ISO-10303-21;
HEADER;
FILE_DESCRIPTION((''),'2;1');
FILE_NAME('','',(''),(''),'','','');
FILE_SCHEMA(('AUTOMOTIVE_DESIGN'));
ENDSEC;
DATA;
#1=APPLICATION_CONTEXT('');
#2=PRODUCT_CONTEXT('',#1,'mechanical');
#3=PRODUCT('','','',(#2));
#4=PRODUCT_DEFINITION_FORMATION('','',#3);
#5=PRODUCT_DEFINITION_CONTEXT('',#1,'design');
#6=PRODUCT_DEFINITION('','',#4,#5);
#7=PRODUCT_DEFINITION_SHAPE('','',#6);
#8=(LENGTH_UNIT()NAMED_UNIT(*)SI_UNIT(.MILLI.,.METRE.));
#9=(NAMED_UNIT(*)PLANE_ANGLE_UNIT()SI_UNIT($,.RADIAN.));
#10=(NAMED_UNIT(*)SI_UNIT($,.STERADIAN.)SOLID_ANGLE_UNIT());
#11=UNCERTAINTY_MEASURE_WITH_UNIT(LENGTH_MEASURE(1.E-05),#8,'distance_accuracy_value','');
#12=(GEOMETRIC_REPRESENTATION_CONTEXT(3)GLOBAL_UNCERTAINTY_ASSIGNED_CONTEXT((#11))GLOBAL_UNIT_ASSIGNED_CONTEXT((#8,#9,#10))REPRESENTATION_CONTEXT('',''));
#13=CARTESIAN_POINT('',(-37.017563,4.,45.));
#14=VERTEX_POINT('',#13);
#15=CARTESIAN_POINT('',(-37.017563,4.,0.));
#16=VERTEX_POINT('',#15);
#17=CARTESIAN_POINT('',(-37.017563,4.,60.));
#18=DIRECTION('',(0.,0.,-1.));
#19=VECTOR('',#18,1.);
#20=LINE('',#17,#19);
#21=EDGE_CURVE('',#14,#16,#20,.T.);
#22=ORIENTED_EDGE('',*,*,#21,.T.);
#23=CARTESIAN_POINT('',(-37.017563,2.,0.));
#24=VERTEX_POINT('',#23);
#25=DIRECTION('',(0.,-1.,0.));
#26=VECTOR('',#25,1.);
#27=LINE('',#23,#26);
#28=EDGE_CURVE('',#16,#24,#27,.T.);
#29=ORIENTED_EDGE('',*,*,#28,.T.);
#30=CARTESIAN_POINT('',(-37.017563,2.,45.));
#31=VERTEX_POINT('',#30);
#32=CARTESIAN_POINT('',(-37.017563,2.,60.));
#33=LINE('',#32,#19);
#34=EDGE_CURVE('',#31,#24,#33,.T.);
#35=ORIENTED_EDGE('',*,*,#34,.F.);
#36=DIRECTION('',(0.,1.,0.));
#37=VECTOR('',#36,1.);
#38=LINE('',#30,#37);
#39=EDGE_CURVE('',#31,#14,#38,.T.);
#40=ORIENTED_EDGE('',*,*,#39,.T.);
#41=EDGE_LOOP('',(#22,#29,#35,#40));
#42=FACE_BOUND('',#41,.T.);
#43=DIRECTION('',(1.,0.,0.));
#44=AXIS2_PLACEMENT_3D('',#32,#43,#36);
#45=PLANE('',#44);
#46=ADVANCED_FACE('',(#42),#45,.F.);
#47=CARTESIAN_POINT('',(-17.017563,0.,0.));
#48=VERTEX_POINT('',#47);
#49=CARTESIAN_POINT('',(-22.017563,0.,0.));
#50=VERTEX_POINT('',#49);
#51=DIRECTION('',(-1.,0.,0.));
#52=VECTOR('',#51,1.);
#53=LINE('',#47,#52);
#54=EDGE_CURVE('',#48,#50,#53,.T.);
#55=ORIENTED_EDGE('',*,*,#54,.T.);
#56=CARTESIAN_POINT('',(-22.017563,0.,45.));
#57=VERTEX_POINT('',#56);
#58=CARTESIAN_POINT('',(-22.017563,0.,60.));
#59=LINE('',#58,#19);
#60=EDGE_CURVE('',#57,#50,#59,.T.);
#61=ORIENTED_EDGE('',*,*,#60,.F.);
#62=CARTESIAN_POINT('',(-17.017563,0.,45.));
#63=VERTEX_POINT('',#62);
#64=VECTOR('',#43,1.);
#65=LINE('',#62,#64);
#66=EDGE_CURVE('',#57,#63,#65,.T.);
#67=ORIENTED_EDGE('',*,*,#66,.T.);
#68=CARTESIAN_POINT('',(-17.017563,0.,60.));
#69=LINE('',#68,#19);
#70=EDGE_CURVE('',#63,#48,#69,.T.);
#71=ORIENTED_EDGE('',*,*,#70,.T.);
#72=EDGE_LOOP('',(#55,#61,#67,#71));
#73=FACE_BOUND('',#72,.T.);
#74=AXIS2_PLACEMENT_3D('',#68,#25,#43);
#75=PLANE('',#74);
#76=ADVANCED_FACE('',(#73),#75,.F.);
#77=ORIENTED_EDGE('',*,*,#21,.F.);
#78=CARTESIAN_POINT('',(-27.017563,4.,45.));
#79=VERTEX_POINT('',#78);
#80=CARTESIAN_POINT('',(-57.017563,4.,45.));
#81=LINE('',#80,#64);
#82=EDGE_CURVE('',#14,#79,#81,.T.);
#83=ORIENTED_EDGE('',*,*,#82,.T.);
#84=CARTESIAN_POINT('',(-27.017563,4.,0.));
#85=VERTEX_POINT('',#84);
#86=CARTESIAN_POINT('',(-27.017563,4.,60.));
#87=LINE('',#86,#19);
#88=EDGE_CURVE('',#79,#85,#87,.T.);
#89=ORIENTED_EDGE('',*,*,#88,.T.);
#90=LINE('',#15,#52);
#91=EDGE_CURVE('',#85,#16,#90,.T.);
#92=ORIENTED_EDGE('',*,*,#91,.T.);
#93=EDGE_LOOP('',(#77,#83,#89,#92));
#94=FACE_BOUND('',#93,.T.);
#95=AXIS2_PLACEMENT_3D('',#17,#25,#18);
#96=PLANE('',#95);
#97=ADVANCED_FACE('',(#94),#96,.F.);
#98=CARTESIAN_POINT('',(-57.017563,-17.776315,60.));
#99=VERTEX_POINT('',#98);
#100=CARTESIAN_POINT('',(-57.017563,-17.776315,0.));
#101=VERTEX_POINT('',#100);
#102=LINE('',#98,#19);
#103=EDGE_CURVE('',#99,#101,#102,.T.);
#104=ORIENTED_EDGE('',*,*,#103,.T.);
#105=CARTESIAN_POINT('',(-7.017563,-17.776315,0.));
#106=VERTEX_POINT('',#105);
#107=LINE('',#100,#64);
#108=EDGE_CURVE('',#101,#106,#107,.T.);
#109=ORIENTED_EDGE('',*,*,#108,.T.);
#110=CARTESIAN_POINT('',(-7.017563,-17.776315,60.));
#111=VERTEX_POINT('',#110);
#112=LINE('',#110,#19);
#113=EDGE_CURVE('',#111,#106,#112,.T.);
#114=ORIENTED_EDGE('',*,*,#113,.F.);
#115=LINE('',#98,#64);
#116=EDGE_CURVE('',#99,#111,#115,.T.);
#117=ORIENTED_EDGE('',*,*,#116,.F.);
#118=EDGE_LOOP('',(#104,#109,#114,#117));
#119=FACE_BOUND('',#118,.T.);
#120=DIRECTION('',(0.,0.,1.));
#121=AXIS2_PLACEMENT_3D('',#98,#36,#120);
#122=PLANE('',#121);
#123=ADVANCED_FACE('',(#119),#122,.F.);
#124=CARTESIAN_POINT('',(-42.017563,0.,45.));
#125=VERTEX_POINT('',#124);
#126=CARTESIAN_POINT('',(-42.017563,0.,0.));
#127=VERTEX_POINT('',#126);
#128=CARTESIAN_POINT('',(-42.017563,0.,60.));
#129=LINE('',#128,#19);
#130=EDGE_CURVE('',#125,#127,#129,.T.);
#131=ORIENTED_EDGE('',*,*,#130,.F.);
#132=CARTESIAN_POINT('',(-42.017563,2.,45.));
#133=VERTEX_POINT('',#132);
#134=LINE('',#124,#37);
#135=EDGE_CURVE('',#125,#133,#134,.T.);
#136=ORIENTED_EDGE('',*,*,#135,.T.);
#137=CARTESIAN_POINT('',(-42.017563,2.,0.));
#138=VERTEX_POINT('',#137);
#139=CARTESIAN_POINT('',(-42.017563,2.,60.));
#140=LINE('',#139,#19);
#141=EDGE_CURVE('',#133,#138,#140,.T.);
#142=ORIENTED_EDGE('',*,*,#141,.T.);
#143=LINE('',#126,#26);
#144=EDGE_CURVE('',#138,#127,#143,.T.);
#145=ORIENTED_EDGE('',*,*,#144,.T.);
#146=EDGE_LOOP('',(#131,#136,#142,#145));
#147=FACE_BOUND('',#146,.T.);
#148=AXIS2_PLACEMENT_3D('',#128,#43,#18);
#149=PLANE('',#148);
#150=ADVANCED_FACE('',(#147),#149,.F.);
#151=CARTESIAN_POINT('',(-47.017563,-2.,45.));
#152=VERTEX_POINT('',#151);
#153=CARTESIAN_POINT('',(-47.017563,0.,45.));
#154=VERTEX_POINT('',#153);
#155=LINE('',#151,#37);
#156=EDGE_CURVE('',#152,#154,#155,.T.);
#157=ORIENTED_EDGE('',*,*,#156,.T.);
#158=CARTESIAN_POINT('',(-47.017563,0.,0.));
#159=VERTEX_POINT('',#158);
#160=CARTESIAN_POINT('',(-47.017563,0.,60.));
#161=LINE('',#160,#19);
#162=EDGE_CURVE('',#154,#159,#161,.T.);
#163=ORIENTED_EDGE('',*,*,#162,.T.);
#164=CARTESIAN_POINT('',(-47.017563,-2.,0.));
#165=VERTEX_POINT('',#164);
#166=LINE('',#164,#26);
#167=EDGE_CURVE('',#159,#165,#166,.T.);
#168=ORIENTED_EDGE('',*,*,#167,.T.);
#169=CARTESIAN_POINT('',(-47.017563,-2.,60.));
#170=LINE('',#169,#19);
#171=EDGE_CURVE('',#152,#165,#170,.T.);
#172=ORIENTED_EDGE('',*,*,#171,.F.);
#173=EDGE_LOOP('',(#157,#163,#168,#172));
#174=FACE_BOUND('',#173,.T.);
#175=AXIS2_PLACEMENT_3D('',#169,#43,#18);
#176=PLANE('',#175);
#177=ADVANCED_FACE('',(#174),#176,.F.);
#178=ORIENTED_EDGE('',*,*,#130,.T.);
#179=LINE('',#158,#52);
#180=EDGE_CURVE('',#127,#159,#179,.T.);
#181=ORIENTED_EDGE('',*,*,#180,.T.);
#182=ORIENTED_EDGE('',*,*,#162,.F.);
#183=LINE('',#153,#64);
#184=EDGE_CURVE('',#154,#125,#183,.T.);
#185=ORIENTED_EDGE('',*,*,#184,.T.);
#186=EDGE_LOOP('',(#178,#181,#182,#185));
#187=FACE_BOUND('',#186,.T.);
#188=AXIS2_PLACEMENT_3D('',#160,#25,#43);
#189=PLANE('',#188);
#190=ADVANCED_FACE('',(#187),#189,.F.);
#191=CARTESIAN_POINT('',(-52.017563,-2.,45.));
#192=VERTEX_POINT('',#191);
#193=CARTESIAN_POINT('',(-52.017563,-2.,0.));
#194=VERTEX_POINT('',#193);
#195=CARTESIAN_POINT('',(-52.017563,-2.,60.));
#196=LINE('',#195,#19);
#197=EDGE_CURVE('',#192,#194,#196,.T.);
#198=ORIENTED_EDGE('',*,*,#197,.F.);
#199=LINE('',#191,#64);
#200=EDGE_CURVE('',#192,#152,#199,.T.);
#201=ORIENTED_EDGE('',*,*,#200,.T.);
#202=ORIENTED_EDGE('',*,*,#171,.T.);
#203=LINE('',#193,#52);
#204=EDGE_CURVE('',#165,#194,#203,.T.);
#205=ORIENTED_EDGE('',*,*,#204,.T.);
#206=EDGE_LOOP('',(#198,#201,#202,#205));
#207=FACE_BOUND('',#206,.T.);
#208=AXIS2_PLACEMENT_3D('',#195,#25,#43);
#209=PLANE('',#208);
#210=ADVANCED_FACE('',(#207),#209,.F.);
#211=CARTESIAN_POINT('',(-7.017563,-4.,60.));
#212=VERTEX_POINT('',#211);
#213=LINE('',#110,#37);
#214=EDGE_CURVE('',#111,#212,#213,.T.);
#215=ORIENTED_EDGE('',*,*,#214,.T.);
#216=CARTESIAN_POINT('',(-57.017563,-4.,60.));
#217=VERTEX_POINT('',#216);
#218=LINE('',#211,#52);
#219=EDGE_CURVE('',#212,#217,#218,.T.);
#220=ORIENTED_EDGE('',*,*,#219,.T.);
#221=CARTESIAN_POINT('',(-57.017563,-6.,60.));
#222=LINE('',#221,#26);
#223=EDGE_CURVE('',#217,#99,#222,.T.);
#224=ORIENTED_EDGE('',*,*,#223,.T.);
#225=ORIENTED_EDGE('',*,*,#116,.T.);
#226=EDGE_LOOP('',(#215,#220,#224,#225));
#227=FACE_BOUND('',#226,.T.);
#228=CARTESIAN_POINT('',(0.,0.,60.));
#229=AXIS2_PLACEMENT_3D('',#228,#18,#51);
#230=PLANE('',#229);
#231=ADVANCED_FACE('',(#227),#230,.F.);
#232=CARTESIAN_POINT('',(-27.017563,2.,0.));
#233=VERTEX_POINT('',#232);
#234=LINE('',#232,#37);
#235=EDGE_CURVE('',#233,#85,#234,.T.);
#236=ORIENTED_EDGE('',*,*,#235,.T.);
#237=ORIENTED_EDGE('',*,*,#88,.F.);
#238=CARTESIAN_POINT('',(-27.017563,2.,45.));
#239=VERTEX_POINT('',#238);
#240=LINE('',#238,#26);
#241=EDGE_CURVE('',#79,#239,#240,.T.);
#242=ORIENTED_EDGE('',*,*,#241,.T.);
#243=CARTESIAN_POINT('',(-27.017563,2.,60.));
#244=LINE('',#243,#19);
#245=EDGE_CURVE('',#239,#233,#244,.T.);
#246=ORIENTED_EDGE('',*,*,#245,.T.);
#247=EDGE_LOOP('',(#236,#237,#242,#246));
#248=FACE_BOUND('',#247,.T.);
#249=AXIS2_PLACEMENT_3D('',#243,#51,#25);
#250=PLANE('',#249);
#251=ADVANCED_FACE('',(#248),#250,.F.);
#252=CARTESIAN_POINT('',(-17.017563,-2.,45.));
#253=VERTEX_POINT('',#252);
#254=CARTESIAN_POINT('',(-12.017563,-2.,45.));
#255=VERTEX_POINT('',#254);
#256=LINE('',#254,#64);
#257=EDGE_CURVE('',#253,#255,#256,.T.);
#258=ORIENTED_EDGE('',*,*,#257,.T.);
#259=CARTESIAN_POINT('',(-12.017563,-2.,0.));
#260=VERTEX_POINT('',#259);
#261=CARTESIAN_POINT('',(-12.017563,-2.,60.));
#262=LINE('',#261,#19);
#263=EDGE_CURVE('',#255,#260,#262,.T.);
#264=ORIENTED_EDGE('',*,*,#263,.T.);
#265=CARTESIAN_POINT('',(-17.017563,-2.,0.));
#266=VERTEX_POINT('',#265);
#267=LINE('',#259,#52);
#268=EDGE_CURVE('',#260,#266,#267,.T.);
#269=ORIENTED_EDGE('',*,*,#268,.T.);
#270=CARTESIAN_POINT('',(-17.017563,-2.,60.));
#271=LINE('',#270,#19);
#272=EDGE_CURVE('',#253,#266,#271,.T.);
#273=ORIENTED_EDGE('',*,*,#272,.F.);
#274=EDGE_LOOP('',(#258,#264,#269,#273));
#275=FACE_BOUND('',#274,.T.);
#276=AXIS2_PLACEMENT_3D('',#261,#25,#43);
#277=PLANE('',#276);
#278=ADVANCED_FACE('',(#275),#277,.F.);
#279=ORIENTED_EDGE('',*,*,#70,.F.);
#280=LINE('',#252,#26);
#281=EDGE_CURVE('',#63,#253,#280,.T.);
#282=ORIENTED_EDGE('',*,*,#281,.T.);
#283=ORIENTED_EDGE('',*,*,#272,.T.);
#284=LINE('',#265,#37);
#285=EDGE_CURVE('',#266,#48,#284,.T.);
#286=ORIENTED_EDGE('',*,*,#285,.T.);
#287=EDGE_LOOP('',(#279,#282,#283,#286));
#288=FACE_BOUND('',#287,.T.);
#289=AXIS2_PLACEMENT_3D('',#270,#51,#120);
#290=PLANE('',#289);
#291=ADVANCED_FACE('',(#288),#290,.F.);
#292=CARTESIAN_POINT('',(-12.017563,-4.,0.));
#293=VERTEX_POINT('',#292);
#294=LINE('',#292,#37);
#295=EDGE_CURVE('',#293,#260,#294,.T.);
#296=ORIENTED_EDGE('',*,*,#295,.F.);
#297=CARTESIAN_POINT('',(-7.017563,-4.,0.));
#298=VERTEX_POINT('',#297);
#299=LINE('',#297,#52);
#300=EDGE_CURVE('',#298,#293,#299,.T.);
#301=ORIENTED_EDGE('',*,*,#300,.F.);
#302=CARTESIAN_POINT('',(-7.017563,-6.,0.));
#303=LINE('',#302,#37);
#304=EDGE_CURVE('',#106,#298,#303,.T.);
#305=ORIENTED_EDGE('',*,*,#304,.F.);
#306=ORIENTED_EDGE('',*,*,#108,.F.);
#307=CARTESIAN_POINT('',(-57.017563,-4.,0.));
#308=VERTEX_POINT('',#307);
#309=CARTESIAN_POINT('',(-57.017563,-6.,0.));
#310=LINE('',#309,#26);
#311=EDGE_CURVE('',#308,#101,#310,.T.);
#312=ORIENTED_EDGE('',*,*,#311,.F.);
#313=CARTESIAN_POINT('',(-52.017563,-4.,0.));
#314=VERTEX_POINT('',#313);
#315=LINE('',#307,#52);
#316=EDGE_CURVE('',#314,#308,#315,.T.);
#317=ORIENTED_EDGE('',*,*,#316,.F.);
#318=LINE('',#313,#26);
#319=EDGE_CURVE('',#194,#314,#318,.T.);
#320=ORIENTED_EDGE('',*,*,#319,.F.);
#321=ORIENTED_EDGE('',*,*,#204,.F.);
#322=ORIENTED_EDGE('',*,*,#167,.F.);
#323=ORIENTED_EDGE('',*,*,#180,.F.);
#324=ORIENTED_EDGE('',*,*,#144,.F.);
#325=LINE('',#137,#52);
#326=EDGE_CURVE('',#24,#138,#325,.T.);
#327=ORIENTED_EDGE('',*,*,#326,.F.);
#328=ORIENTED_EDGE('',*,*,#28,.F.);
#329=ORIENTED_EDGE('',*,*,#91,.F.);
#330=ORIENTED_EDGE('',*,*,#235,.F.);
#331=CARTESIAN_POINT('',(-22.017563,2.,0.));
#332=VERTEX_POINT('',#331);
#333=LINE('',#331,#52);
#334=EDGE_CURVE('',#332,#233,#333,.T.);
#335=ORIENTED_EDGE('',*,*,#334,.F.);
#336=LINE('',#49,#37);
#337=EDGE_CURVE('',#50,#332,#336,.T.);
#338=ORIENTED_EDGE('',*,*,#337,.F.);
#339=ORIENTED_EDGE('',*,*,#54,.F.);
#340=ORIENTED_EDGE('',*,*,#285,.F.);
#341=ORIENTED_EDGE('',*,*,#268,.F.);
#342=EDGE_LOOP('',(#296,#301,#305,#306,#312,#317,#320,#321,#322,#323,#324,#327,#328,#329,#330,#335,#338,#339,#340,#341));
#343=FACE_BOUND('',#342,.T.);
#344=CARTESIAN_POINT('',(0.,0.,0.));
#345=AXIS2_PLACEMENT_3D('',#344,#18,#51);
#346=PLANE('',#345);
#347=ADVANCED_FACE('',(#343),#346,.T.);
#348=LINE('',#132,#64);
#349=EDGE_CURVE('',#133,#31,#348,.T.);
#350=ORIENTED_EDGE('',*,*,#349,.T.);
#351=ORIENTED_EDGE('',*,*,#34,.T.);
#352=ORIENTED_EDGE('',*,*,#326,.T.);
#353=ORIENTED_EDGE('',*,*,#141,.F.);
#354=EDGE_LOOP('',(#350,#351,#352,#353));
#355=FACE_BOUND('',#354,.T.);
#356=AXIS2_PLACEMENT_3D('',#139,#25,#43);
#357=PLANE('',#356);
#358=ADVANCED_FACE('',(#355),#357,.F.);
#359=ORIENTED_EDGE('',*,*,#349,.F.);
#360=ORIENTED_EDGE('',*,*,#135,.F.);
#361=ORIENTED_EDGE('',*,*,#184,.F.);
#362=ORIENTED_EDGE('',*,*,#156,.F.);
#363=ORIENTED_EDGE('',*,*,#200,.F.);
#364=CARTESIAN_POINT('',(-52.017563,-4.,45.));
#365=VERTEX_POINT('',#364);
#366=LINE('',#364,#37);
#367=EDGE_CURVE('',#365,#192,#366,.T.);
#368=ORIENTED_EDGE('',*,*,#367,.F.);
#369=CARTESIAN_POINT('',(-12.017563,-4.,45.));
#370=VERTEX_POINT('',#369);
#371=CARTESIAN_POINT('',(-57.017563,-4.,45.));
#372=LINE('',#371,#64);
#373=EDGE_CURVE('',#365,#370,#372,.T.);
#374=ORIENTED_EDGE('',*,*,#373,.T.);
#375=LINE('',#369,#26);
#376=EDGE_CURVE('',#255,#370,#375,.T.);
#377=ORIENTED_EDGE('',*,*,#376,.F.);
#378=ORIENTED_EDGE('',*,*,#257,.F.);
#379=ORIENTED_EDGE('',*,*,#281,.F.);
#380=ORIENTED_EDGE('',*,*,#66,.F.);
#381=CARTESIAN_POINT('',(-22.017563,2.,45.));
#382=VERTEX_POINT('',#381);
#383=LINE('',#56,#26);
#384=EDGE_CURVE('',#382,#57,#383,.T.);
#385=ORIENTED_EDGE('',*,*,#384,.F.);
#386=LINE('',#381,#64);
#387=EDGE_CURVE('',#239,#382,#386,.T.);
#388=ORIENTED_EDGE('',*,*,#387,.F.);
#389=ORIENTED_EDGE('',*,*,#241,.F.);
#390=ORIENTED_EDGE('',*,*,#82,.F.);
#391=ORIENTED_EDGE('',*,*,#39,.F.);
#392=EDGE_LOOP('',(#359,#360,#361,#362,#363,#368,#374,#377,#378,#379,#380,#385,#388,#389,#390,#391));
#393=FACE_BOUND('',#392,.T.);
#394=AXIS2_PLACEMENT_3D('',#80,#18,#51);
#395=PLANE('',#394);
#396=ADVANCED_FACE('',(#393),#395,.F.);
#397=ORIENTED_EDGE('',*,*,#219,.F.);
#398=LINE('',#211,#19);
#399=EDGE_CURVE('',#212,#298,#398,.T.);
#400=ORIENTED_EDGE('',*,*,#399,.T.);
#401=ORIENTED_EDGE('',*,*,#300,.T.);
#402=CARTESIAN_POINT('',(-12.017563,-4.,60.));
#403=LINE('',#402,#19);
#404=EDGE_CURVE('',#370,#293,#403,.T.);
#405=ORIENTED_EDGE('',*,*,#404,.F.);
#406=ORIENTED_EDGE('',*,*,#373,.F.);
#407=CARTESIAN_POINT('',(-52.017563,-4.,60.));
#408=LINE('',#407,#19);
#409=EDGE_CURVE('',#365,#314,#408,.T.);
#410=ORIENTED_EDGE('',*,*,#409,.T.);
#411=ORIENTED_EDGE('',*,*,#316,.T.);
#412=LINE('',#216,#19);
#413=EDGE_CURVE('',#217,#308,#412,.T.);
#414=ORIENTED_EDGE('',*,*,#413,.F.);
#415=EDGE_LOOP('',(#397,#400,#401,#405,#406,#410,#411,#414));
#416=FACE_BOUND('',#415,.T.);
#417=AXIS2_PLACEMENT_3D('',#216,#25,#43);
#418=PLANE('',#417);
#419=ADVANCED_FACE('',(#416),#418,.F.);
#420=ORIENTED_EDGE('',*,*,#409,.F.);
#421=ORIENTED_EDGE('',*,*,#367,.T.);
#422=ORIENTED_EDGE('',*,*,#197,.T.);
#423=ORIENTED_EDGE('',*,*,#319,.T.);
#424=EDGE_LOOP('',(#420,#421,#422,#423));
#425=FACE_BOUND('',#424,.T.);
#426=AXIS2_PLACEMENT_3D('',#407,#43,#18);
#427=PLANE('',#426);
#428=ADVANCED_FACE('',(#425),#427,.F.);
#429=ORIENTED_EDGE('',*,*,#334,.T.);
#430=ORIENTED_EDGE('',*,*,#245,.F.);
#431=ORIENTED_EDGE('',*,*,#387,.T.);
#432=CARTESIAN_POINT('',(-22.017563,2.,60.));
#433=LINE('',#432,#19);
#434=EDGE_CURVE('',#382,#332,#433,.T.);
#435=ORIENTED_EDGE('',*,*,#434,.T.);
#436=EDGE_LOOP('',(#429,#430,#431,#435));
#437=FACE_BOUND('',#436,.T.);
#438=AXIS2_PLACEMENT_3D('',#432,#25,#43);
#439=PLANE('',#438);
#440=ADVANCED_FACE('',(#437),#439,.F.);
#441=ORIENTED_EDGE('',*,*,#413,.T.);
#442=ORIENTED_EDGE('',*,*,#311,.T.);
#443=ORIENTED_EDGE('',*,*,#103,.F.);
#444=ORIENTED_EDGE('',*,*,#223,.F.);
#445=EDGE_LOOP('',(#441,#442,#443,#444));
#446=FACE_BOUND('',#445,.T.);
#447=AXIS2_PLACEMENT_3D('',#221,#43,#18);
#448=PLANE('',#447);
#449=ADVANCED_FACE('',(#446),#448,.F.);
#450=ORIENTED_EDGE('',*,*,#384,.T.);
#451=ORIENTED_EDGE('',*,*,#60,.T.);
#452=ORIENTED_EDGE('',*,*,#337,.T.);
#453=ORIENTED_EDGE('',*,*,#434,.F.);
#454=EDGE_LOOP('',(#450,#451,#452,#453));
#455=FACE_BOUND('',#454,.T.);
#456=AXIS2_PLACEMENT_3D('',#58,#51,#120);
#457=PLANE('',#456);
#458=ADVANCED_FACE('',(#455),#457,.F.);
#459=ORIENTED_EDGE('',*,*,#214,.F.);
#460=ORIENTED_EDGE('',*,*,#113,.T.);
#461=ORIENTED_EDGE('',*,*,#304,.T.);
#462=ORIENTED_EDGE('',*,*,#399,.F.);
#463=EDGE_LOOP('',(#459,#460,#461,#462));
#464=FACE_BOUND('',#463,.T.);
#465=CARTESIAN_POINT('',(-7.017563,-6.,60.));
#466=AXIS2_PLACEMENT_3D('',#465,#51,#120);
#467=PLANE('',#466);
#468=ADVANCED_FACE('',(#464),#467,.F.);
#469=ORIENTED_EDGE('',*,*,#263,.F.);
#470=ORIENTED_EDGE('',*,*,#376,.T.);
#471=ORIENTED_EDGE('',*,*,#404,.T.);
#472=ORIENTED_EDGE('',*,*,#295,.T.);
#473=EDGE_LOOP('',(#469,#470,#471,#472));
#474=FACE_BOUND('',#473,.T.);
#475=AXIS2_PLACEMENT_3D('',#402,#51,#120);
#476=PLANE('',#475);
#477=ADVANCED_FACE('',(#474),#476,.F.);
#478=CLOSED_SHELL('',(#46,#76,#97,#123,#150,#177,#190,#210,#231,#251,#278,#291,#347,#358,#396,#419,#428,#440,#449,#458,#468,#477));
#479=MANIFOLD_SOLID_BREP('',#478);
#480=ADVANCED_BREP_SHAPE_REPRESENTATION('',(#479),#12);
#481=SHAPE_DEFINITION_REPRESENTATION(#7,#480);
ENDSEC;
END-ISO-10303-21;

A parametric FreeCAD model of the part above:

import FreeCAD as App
import Part
import Sketcher
from FreeCAD import Vector
Q = App.Units.Quantity


def add_polygon(sketch, points):
    """Adds a closed chain of lines whose ends are joined by coincident constraints."""
    first, n = sketch.GeometryCount, len(points)
    for a, b in zip(points, points[1:] + points[:1]):
        sketch.addGeometry(Part.LineSegment(App.Vector(*a, 0), App.Vector(*b, 0)), False)
    for i in range(n):
        sketch.addConstraint(Sketcher.Constraint("Coincident", first + i, 2, first + (i + 1) % n, 1))

doc = App.newDocument("Part")
body = doc.addObject("PartDesign::Body", "Body")

sketch1 = body.newObject("Sketcher::SketchObject", "Sketch")
sketch1.AttachmentSupport = (doc.getObject("XY_Plane"), [""])
sketch1.MapMode = "FlatFace"
add_polygon(sketch1, [(-27, 4), (-37, 4), (-37, 2), (-42, 2), (-42, 0), (-47, 0), (-47, -2), (-52, -2), (-52, -4), (-57, -4), (-57, -17.8), (-7, -17.8), (-7, -4), (-12, -4), (-12, -2), (-17, -2), (-17, 0), (-22, 0), (-22, 2), (-27, 2)])
sketch1.addConstraint([
    Sketcher.Constraint("Horizontal", 0),
    Sketcher.Constraint("Vertical", 1),
    Sketcher.Constraint("Horizontal", 2),
    Sketcher.Constraint("Vertical", 3),
    Sketcher.Constraint("Horizontal", 4),
    Sketcher.Constraint("Vertical", 5),
    Sketcher.Constraint("Horizontal", 6),
    Sketcher.Constraint("Vertical", 7),
    Sketcher.Constraint("Horizontal", 8),
    Sketcher.Constraint("Vertical", 9),
    Sketcher.Constraint("Horizontal", 10),
    Sketcher.Constraint("Vertical", 11),
    Sketcher.Constraint("Horizontal", 12),
    Sketcher.Constraint("Vertical", 13),
    Sketcher.Constraint("Horizontal", 14),
    Sketcher.Constraint("Vertical", 15),
    Sketcher.Constraint("Horizontal", 16),
    Sketcher.Constraint("Vertical", 17),
    Sketcher.Constraint("Horizontal", 18),
    Sketcher.Constraint("Vertical", 19),
    Sketcher.Constraint("PointOnObject", 3, 2, -1),
    Sketcher.Constraint("PointOnObject", 15, 2, -1),
    Sketcher.Constraint("Horizontal", 8, 2, 11, 2),
    Sketcher.Constraint("Horizontal", 6, 2, 13, 2),
    Sketcher.Constraint("Horizontal", 2, 2, 17, 2),
    Sketcher.Constraint("Equal", 2, 4),
    Sketcher.Constraint("Equal", 4, 6),
    Sketcher.Constraint("Equal", 6, 8),
    Sketcher.Constraint("Equal", 8, 12),
    Sketcher.Constraint("Equal", 12, 14),
    Sketcher.Constraint("Equal", 14, 16),
    Sketcher.Constraint("Equal", 16, 18),
    Sketcher.Constraint("Equal", 1, 3),
    Sketcher.Constraint("Equal", 3, 5),
    Sketcher.Constraint("Equal", 5, 7),
    Sketcher.Constraint("DistanceX", 0, 2, 0, 1, Q("10 mm")),
    Sketcher.Constraint("DistanceX", 2, 2, 2, 1, Q("5 mm")),
    Sketcher.Constraint("DistanceY", 1, 2, 1, 1, Q("2 mm")),
    Sketcher.Constraint("DistanceY", 9, 2, 9, 1, Q("13.776315 mm")),
    Sketcher.Constraint("DistanceX", 0, 2, -1, 1, Q("37.017563 mm")),
])
pad1 = body.newObject("PartDesign::Pad", "Pad")
pad1.Profile = sketch1
pad1.Length = 60

sketch2 = body.newObject("Sketcher::SketchObject", "Sketch001")
sketch2.AttachmentSupport = (doc.getObject("YZ_Plane"), [""])
sketch2.MapMode = "FlatFace"
sketch2.AttachmentOffset = App.Placement(Vector(0, 0, -7.017563), App.Rotation())
add_polygon(sketch2, [(4, 60), (-4, 60), (-4, 45), (4, 45)])
sketch2.addConstraint([
    Sketcher.Constraint("Horizontal", 0),
    Sketcher.Constraint("Vertical", 1),
    Sketcher.Constraint("Horizontal", 2),
    Sketcher.Constraint("Vertical", 3),
    Sketcher.Constraint("DistanceX", 0, 2, 0, 1, Q("8 mm")),
    Sketcher.Constraint("DistanceY", 1, 2, 1, 1, Q("15 mm")),
    Sketcher.Constraint("DistanceX", 0, 2, -1, 1, Q("4 mm")),
    Sketcher.Constraint("DistanceY", -1, 1, 0, 2, Q("60 mm")),
])
pocket1 = body.newObject("PartDesign::Pocket", "Pocket")
pocket1.Profile = sketch2
pocket1.Length = 50

doc.recompute()
